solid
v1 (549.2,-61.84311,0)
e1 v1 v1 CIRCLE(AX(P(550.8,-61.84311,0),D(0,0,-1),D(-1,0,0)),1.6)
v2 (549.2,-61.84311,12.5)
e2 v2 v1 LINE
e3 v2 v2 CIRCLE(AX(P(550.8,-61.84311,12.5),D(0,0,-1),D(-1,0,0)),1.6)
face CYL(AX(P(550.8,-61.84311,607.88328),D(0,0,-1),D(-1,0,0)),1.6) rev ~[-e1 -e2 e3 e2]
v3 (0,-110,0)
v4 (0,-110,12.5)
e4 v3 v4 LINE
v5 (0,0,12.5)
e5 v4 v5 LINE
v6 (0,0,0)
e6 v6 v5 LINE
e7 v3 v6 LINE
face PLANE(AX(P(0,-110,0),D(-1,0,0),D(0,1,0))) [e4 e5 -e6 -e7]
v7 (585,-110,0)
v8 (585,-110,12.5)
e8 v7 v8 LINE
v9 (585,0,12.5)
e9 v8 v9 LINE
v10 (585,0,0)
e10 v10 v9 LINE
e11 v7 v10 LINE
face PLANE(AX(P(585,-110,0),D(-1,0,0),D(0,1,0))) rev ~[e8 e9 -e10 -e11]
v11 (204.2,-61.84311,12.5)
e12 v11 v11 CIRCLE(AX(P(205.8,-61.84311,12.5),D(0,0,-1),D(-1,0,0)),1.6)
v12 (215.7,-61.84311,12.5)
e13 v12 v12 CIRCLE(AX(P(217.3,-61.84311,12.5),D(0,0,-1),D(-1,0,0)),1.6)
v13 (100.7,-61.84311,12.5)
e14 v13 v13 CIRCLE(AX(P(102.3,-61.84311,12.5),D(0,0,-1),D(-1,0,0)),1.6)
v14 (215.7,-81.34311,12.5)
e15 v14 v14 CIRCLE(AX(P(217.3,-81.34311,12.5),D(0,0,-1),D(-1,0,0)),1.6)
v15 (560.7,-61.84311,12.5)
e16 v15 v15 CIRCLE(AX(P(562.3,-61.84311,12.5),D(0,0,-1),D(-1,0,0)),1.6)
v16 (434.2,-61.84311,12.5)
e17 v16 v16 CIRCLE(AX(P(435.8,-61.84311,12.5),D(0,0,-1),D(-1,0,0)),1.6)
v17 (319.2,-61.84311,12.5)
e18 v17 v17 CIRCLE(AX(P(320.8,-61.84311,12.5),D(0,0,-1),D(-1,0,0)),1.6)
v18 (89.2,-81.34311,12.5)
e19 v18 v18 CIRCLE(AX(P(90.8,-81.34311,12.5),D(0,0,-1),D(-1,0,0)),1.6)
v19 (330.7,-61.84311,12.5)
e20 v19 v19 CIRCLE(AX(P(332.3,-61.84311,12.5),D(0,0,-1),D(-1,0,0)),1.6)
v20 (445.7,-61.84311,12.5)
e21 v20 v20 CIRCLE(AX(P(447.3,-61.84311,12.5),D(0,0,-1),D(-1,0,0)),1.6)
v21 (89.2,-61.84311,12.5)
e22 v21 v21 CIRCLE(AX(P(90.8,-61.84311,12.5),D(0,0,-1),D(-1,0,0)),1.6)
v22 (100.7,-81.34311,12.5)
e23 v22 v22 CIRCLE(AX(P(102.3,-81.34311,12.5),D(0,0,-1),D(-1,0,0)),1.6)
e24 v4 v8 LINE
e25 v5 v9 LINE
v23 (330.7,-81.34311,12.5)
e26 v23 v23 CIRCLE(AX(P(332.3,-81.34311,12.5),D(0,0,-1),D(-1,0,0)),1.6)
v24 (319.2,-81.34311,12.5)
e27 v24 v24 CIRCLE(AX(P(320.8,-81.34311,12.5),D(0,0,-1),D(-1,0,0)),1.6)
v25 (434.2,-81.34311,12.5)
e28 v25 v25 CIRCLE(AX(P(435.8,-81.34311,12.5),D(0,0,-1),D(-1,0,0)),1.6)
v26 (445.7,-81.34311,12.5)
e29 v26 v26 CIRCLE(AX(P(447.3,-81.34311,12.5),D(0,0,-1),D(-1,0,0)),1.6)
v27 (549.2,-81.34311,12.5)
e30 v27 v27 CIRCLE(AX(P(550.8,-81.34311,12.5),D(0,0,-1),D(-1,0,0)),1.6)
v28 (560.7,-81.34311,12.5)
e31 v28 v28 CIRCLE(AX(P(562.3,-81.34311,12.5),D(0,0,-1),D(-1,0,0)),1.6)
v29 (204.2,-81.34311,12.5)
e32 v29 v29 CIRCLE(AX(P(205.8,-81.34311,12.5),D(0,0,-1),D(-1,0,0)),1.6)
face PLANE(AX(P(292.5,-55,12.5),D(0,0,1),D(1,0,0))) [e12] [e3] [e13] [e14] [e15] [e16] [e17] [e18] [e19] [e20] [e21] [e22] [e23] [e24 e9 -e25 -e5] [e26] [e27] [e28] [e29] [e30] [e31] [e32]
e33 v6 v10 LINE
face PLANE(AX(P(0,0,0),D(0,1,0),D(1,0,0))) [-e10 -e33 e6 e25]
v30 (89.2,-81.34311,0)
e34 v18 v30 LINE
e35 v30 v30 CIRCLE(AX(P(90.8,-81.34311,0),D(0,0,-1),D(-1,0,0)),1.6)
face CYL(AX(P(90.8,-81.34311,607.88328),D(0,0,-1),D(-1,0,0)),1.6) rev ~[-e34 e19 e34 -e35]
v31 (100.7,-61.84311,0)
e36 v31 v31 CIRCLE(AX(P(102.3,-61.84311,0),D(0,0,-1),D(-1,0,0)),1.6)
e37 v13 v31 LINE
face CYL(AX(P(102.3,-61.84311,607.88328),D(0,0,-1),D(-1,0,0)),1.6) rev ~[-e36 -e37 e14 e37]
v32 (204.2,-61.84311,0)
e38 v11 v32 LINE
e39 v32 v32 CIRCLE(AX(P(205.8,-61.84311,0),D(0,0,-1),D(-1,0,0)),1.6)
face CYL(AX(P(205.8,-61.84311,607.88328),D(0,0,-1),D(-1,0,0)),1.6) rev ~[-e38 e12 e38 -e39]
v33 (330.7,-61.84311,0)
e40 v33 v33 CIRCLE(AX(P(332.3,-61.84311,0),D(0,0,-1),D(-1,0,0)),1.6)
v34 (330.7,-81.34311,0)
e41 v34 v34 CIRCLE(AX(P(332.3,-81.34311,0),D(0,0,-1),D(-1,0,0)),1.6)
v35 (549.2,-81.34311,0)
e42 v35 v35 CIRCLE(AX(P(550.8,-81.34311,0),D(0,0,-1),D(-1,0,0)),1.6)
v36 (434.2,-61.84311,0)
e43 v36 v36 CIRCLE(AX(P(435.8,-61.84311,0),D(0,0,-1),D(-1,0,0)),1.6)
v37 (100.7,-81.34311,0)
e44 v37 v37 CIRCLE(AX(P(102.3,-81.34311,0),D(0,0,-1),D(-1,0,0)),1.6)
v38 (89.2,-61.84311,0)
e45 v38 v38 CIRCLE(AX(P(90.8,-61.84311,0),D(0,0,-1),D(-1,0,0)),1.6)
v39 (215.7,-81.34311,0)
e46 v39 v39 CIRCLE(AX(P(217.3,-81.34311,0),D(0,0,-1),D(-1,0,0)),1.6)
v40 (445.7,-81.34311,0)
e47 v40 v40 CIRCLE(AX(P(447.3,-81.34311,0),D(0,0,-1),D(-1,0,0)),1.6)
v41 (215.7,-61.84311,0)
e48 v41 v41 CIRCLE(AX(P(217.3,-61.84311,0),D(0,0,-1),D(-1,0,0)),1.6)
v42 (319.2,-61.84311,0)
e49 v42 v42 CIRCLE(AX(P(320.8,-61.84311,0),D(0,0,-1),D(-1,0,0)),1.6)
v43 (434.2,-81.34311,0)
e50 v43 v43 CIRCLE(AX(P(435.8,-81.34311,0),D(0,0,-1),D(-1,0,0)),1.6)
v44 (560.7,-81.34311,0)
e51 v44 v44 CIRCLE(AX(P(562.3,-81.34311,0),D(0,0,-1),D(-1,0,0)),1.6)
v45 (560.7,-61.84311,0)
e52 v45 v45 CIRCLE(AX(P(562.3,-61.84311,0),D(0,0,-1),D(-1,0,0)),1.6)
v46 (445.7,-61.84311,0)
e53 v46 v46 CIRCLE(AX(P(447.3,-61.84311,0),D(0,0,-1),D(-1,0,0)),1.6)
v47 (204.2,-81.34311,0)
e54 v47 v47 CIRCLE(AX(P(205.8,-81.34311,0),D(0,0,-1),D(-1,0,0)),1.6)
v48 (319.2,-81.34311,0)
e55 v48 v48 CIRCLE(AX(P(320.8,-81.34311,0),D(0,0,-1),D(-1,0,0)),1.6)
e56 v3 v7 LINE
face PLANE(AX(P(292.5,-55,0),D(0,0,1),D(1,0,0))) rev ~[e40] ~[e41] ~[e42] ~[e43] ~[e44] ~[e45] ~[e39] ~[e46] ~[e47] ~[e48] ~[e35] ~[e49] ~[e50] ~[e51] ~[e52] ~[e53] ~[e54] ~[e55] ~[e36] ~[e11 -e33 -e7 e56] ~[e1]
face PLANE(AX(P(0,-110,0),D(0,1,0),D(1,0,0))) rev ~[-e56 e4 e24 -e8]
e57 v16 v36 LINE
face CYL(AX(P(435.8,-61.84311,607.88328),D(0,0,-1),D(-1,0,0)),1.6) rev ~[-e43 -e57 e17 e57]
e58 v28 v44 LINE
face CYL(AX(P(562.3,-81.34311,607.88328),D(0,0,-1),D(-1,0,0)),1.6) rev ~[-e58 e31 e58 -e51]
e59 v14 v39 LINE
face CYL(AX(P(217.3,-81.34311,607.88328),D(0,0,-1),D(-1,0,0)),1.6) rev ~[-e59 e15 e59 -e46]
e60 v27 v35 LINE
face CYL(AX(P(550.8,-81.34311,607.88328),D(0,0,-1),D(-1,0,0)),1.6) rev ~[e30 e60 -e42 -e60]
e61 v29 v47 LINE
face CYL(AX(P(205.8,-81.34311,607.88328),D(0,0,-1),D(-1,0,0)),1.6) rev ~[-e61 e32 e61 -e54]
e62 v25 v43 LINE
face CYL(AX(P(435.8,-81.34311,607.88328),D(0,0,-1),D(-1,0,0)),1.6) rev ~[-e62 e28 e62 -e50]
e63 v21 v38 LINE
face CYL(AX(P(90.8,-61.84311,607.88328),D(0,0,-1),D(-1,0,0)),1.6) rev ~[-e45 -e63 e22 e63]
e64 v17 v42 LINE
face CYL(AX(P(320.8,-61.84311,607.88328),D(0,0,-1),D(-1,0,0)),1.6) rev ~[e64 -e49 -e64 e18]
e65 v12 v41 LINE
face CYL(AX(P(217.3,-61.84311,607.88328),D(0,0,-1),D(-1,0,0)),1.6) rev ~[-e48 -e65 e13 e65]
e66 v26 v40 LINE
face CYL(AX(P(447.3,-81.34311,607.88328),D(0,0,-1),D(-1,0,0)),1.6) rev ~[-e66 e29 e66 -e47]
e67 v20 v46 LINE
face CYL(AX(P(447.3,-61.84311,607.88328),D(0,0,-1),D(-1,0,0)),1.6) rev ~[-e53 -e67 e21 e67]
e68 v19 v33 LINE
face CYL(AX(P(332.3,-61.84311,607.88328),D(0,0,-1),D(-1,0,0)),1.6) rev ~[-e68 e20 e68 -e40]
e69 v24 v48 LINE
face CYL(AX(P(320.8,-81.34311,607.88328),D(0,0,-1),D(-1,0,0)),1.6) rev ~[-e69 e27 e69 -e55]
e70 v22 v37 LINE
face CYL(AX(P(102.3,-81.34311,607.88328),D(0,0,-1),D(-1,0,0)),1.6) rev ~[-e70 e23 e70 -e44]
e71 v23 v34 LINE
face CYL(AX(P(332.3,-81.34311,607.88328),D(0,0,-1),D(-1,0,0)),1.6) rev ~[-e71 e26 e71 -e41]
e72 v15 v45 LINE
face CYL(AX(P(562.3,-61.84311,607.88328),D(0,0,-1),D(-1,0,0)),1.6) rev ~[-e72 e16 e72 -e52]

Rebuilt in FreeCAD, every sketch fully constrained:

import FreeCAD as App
import Part
import Sketcher

doc = App.newDocument("Part")
body = doc.addObject("PartDesign::Body", "Body")

sketch1 = body.newObject("Sketcher::SketchObject", "Sketch")
sketch1.AttachmentSupport = (doc.getObject("XY_Plane"), [""])
sketch1.MapMode = "FlatFace"
sketch1.addGeometry([
    Part.LineSegment(App.Vector(0, 0, 0), App.Vector(0, -110, 0)),
    Part.LineSegment(App.Vector(0, -110, 0), App.Vector(585, -110, 0)),
    Part.LineSegment(App.Vector(585, -110, 0), App.Vector(585, 0, 0)),
    Part.LineSegment(App.Vector(585, 0, 0), App.Vector(0, 0, 0)),
], False)
sketch1.addConstraint([
    Sketcher.Constraint("Coincident", 0, 2, 1, 1),
    Sketcher.Constraint("Coincident", 1, 2, 2, 1),
    Sketcher.Constraint("Coincident", 2, 2, 3, 1),
    Sketcher.Constraint("Coincident", 3, 2, 0, 1),
    Sketcher.Constraint("Vertical", 0),
    Sketcher.Constraint("Horizontal", 1),
    Sketcher.Constraint("Vertical", 2),
    Sketcher.Constraint("Horizontal", 3),
    Sketcher.Constraint("Coincident", 3, 2, -1, 1),
    Sketcher.Constraint("DistanceX", 1, 1, 1, 2, 585.0),
    Sketcher.Constraint("DistanceY", 0, 2, 0, 1, 110.0),
])
pad1 = body.newObject("PartDesign::Pad", "Pad")
pad1.Profile = sketch1
pad1.Length = 12.5

sketch2 = body.newObject("Sketcher::SketchObject", "Sketch001")
sketch2.AttachmentSupport = (doc.getObject("XY_Plane"), [""])
sketch2.MapMode = "FlatFace"
sketch2.AttachmentOffset = App.Placement(App.Vector(0, 0, 12.5), App.Rotation())
sketch2.addGeometry([
    Part.Circle(App.Vector(90.8, -81.3, 0), App.Vector(0, 0, 1), 1.6),
    Part.Circle(App.Vector(90.8, -61.8, 0), App.Vector(0, 0, 1), 1.6),
    Part.Circle(App.Vector(102.3, -61.8, 0), App.Vector(0, 0, 1), 1.6),
    Part.Circle(App.Vector(102.3, -81.3, 0), App.Vector(0, 0, 1), 1.6),
    Part.Circle(App.Vector(205.8, -61.8, 0), App.Vector(0, 0, 1), 1.6),
    Part.Circle(App.Vector(217.3, -61.8, 0), App.Vector(0, 0, 1), 1.6),
    Part.Circle(App.Vector(205.8, -81.3, 0), App.Vector(0, 0, 1), 1.6),
    Part.Circle(App.Vector(217.3, -81.3, 0), App.Vector(0, 0, 1), 1.6),
    Part.Circle(App.Vector(320.8, -61.8, 0), App.Vector(0, 0, 1), 1.6),
    Part.Circle(App.Vector(320.8, -81.3, 0), App.Vector(0, 0, 1), 1.6),
    Part.Circle(App.Vector(332.3, -61.8, 0), App.Vector(0, 0, 1), 1.6),
    Part.Circle(App.Vector(332.3, -81.3, 0), App.Vector(0, 0, 1), 1.6),
    Part.Circle(App.Vector(435.8, -61.8, 0), App.Vector(0, 0, 1), 1.6),
    Part.Circle(App.Vector(447.3, -61.8, 0), App.Vector(0, 0, 1), 1.6),
    Part.Circle(App.Vector(435.8, -81.3, 0), App.Vector(0, 0, 1), 1.6),
    Part.Circle(App.Vector(447.3, -81.3, 0), App.Vector(0, 0, 1), 1.6),
    Part.Circle(App.Vector(550.8, -61.8, 0), App.Vector(0, 0, 1), 1.6),
    Part.Circle(App.Vector(562.3, -61.8, 0), App.Vector(0, 0, 1), 1.6),
    Part.Circle(App.Vector(562.3, -81.3, 0), App.Vector(0, 0, 1), 1.6),
    Part.Circle(App.Vector(550.8, -81.3, 0), App.Vector(0, 0, 1), 1.6),
], False)
sketch2.addConstraint([
    Sketcher.Constraint("Equal", 0, 1),
    Sketcher.Constraint("Equal", 1, 2),
    Sketcher.Constraint("Equal", 2, 3),
    Sketcher.Constraint("Equal", 3, 4),
    Sketcher.Constraint("Equal", 4, 5),
    Sketcher.Constraint("Equal", 5, 6),
    Sketcher.Constraint("Equal", 6, 7),
    Sketcher.Constraint("Equal", 7, 8),
    Sketcher.Constraint("Equal", 8, 9),
    Sketcher.Constraint("Equal", 9, 10),
    Sketcher.Constraint("Equal", 10, 11),
    Sketcher.Constraint("Equal", 11, 12),
    Sketcher.Constraint("Equal", 12, 13),
    Sketcher.Constraint("Equal", 13, 14),
    Sketcher.Constraint("Equal", 14, 15),
    Sketcher.Constraint("Equal", 15, 16),
    Sketcher.Constraint("Equal", 16, 17),
    Sketcher.Constraint("Equal", 17, 18),
    Sketcher.Constraint("Equal", 18, 19),
    Sketcher.Constraint("Horizontal", 1, 3, 2, 3),
    Sketcher.Constraint("Horizontal", 0, 3, 3, 3),
    Sketcher.Constraint("Horizontal", 2, 3, 4, 3),
    Sketcher.Constraint("Horizontal", 4, 3, 5, 3),
    Sketcher.Constraint("Horizontal", 3, 3, 6, 3),
    Sketcher.Constraint("Horizontal", 6, 3, 7, 3),
    Sketcher.Constraint("Horizontal", 5, 3, 8, 3),
    Sketcher.Constraint("Horizontal", 7, 3, 9, 3),
    Sketcher.Constraint("Horizontal", 8, 3, 10, 3),
    Sketcher.Constraint("Horizontal", 9, 3, 11, 3),
    Sketcher.Constraint("Horizontal", 10, 3, 12, 3),
    Sketcher.Constraint("Horizontal", 12, 3, 13, 3),
    Sketcher.Constraint("Horizontal", 11, 3, 14, 3),
    Sketcher.Constraint("Horizontal", 14, 3, 15, 3),
    Sketcher.Constraint("Horizontal", 13, 3, 16, 3),
    Sketcher.Constraint("Horizontal", 16, 3, 17, 3),
    Sketcher.Constraint("Horizontal", 15, 3, 18, 3),
    Sketcher.Constraint("Horizontal", 18, 3, 19, 3),
    Sketcher.Constraint("Vertical", 0, 3, 1, 3),
    Sketcher.Constraint("Vertical", 2, 3, 3, 3),
    Sketcher.Constraint("Vertical", 4, 3, 6, 3),
    Sketcher.Constraint("Vertical", 5, 3, 7, 3),
    Sketcher.Constraint("Vertical", 8, 3, 9, 3),
    Sketcher.Constraint("Vertical", 10, 3, 11, 3),
    Sketcher.Constraint("Vertical", 12, 3, 14, 3),
    Sketcher.Constraint("Vertical", 13, 3, 15, 3),
    Sketcher.Constraint("Vertical", 17, 3, 18, 3),
    Sketcher.Constraint("Vertical", 16, 3, 19, 3),
    Sketcher.Constraint("Diameter", 0, 3.2),
    Sketcher.Constraint("DistanceX", 1, 3, 4, 3, 115.0),
    Sketcher.Constraint("DistanceX", 2, 3, 5, 3, 115.0),
    Sketcher.Constraint("DistanceX", 4, 3, 8, 3, 115.0),
    Sketcher.Constraint("DistanceX", 5, 3, 10, 3, 115.0),
    Sketcher.Constraint("DistanceX", 8, 3, 12, 3, 115.0),
    Sketcher.Constraint("DistanceX", 10, 3, 13, 3, 115.0),
    Sketcher.Constraint("DistanceX", 12, 3, 16, 3, 115.0),
    Sketcher.Constraint("DistanceX", 13, 3, 17, 3, 115.0),
    Sketcher.Constraint("DistanceX", -1, 1, 0, 3, 90.8),
    Sketcher.Constraint("DistanceX", -1, 1, 2, 3, 102.3),
    Sketcher.Constraint("DistanceY", 0, 3, 1, 3, 19.5),
    Sketcher.Constraint("DistanceY", 0, 3, -1, 1, 81.34311),
])
doc.recompute()
hole = body.newObject("PartDesign::Hole", "Hole")
hole.Profile = sketch2
hole.ThreadType = "None"
hole.Diameter = 3.2
hole.DepthType = "ThroughAll"

doc.recompute()
